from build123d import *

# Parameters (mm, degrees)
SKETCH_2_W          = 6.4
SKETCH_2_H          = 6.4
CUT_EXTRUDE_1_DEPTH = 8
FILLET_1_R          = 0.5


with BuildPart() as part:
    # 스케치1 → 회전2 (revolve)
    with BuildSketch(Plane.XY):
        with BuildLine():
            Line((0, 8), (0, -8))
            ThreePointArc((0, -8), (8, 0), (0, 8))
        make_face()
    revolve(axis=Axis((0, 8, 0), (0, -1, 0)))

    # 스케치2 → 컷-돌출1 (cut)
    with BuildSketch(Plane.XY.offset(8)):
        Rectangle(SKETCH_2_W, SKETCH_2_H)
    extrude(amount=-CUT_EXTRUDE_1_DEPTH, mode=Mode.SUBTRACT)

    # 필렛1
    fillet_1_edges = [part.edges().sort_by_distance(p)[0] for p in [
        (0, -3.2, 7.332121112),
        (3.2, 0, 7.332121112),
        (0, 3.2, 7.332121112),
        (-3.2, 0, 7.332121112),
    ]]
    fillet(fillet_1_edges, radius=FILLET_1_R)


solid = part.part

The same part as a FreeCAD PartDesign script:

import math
import FreeCAD as App
import Part
import Sketcher
Q = App.Units.Quantity


def edges_at(feature, points):
    """Names of the edges that pass closest to the given points."""
    edges = feature.Shape.Edges
    near = lambda p: min(range(len(edges)), key=lambda i: edges[i].distToShape(Part.Vertex(*p))[0])
    return sorted({f"Edge{near(p) + 1}" for p in points})

doc = App.newDocument("Part")
params = doc.addObject("Spreadsheet::Sheet", "Params")
for row, (alias, value) in enumerate([
    ("sketch1_radius", "8 mm"),
    ("revolution_angle", "360 deg"),
    ("sketch2_width", "6.4 mm"),
    ("pocket1_length", "8 mm"),
    ("fillet_radius", "0.5 mm"),
], start=1):
    params.set(f"A{row}", alias)
    params.set(f"B{row}", "=" + value)
    params.setAlias(f"B{row}", alias)

body = doc.addObject("PartDesign::Body", "Body")

sketch1 = body.newObject("Sketcher::SketchObject", "Sketch")
sketch1.AttachmentSupport = (doc.getObject("XY_Plane"), [""])
sketch1.MapMode = "FlatFace"
sketch1.addGeometry([
    Part.LineSegment(App.Vector(0, 8, 0), App.Vector(0, -8, 0)),
    Part.ArcOfCircle(Part.Circle(App.Vector(0, 0, 0), App.Vector(0, 0, 1), 8), math.radians(-90), math.radians(90)),
], False)
sketch1.addConstraint([
    Sketcher.Constraint("Coincident", 0, 1, 1, 2),
    Sketcher.Constraint("Coincident", 1, 1, 0, 2),
    Sketcher.Constraint("Vertical", 0),
    Sketcher.Constraint("Coincident", 1, 3, -1, 1),
    Sketcher.Constraint("PointOnObject", 0, 1, -2),
    Sketcher.Constraint("Radius", 1, Q("8 mm")),
])
sketch1.setExpression("Constraints[5]", "Params.sketch1_radius")
revolution = body.newObject("PartDesign::Revolution", "Revolution")
revolution.Profile = sketch1
revolution.ReferenceAxis = (sketch1, ["V_Axis"])
revolution.setExpression("Angle", "Params.revolution_angle")

sketch2 = body.newObject("Sketcher::SketchObject", "Sketch001")
sketch2.AttachmentSupport = (doc.getObject("XY_Plane"), [""])
sketch2.MapMode = "FlatFace"
sketch2.AttachmentOffset = App.Placement(App.Vector(0, 0, 8), App.Rotation())
sketch2.addGeometry([
    Part.LineSegment(App.Vector(-3.2, 3.2, 0), App.Vector(-3.2, -3.2, 0)),
    Part.LineSegment(App.Vector(-3.2, -3.2, 0), App.Vector(3.2, -3.2, 0)),
    Part.LineSegment(App.Vector(3.2, -3.2, 0), App.Vector(3.2, 3.2, 0)),
    Part.LineSegment(App.Vector(3.2, 3.2, 0), App.Vector(-3.2, 3.2, 0)),
], False)
sketch2.addConstraint([
    Sketcher.Constraint("Coincident", 0, 2, 1, 1),
    Sketcher.Constraint("Coincident", 1, 2, 2, 1),
    Sketcher.Constraint("Coincident", 2, 2, 3, 1),
    Sketcher.Constraint("Coincident", 3, 2, 0, 1),
    Sketcher.Constraint("Vertical", 0),
    Sketcher.Constraint("Horizontal", 1),
    Sketcher.Constraint("Vertical", 2),
    Sketcher.Constraint("Horizontal", 3),
    Sketcher.Constraint("Symmetric", 0, 2, 2, 2, -1, 1),
    Sketcher.Constraint("Equal", 3, 0),
    Sketcher.Constraint("DistanceX", 1, 1, 1, 2, Q("6.4 mm")),
])
sketch2.setExpression("Constraints[10]", "Params.sketch2_width")
pocket1 = body.newObject("PartDesign::Pocket", "Pocket")
pocket1.Profile = sketch2
pocket1.setExpression("Length", "Params.pocket1_length")
doc.recompute()

fillet = body.newObject("PartDesign::Fillet", "Fillet")
fillet.Base = (pocket1, edges_at(pocket1, [
    (0, -3.2, 7.332),
    (3.2, 0, 7.332),
    (0, 3.2, 7.332),
    (-3.2, 0, 7.332),
]))
fillet.setExpression("Radius", "Params.fillet_radius")

doc.recompute()
